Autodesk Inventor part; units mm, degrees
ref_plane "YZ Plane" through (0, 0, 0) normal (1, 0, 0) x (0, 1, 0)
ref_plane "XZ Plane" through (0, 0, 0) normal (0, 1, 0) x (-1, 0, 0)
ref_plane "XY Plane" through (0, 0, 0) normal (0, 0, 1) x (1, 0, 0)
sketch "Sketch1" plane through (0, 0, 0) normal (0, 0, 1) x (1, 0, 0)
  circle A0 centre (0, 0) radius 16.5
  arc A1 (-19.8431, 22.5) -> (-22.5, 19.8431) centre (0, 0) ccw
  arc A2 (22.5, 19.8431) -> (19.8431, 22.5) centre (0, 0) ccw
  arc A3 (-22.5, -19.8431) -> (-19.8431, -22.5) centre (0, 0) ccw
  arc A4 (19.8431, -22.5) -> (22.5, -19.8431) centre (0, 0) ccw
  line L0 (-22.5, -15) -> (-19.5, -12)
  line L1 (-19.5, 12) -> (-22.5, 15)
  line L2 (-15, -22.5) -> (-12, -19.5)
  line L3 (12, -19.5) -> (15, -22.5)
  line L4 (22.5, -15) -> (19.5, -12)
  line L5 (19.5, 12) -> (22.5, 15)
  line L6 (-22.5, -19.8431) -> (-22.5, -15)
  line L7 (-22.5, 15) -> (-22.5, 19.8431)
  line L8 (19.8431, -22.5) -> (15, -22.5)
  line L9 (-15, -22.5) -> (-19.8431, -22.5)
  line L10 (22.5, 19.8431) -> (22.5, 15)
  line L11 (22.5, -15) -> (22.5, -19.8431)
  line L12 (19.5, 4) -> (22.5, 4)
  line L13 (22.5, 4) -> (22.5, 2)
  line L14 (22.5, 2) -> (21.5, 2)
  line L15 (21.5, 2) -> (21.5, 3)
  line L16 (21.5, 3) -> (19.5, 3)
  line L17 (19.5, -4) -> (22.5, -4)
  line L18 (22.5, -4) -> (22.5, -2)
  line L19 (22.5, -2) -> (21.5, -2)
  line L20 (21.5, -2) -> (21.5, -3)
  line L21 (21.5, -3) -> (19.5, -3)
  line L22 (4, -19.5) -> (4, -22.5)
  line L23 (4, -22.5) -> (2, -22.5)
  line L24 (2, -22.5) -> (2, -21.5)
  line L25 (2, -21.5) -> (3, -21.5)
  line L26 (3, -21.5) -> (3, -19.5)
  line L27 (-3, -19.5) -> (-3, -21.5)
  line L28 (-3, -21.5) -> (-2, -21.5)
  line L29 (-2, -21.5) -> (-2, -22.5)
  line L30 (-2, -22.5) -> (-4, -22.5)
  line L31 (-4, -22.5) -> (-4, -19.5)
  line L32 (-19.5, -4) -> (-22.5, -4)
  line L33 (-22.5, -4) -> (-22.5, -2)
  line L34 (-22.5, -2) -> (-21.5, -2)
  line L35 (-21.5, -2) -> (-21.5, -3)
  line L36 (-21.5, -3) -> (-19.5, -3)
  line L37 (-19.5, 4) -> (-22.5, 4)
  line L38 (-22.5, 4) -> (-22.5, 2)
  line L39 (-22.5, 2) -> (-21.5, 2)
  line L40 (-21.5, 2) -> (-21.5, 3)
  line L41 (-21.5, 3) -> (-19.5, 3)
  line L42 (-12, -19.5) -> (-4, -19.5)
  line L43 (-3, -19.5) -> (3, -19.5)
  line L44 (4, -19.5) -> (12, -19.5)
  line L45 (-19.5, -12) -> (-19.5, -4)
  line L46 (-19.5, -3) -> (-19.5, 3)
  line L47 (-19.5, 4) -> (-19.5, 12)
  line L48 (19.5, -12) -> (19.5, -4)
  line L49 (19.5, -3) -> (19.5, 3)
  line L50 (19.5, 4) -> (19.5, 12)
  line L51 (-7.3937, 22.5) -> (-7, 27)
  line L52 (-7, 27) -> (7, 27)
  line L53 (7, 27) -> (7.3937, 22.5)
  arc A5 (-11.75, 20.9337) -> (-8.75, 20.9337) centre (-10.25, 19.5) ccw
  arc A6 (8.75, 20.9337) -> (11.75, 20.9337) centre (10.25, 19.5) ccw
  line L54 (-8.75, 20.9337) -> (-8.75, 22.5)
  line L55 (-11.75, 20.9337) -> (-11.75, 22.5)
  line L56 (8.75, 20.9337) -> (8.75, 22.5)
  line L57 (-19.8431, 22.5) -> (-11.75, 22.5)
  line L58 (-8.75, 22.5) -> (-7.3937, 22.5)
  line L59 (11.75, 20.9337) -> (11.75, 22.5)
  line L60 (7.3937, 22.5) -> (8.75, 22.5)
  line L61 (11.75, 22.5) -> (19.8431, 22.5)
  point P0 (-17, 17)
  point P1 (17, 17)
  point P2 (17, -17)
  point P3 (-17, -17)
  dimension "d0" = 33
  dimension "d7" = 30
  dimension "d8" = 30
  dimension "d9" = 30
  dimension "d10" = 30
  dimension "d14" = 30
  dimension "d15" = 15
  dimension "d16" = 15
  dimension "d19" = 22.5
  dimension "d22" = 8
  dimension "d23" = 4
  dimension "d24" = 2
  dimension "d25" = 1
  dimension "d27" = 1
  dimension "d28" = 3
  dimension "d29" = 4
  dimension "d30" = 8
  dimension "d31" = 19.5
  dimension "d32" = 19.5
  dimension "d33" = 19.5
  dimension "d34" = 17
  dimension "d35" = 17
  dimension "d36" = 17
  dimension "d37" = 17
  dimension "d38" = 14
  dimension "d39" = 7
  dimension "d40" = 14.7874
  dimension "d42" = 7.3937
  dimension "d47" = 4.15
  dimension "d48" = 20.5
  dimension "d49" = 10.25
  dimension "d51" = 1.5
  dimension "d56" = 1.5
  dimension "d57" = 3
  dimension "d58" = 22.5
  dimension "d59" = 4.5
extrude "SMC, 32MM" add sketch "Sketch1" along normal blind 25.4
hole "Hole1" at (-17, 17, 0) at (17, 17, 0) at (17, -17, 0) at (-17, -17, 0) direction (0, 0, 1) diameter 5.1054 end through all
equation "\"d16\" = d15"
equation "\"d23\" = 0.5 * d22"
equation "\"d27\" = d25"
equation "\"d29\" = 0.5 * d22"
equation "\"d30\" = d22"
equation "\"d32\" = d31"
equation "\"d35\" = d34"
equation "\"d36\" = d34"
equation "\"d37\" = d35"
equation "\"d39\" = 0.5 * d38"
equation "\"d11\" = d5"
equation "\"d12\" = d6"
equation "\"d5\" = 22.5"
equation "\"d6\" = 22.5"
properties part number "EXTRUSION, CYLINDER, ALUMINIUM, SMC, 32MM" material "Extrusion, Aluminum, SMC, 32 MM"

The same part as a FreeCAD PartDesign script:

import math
import FreeCAD as App
import Part
import Sketcher
Q = App.Units.Quantity

doc = App.newDocument("Part")
body = doc.addObject("PartDesign::Body", "Body")

sketch1 = body.newObject("Sketcher::SketchObject", "Sketch")
sketch1.AttachmentSupport = (doc.getObject("XY_Plane"), [""])
sketch1.MapMode = "FlatFace"
sketch1.addGeometry([
    Part.LineSegment(App.Vector(-11.8, 22.5, 0), App.Vector(-19.8, 22.5, 0)),
    Part.ArcOfCircle(Part.Circle(App.Vector(0, 0, 0), App.Vector(0, 0, 1), 30), math.radians(131.41), math.radians(138.59)),
    Part.LineSegment(App.Vector(-22.5, 19.8, 0), App.Vector(-22.5, 15, 0)),
    Part.LineSegment(App.Vector(-22.5, 15, 0), App.Vector(-19.5, 12, 0)),
    Part.LineSegment(App.Vector(-19.5, 12, 0), App.Vector(-19.5, 4, 0)),
    Part.LineSegment(App.Vector(-19.5, 4, 0), App.Vector(-22.5, 4, 0)),
    Part.LineSegment(App.Vector(-22.5, 4, 0), App.Vector(-22.5, 2, 0)),
    Part.LineSegment(App.Vector(-22.5, 2, 0), App.Vector(-21.5, 2, 0)),
    Part.LineSegment(App.Vector(-21.5, 2, 0), App.Vector(-21.5, 3, 0)),
    Part.LineSegment(App.Vector(-21.5, 3, 0), App.Vector(-19.5, 3, 0)),
    Part.LineSegment(App.Vector(-19.5, 3, 0), App.Vector(-19.5, -3, 0)),
    Part.LineSegment(App.Vector(-19.5, -3, 0), App.Vector(-21.5, -3, 0)),
    Part.LineSegment(App.Vector(-21.5, -3, 0), App.Vector(-21.5, -2, 0)),
    Part.LineSegment(App.Vector(-21.5, -2, 0), App.Vector(-22.5, -2, 0)),
    Part.LineSegment(App.Vector(-22.5, -2, 0), App.Vector(-22.5, -4, 0)),
    Part.LineSegment(App.Vector(-22.5, -4, 0), App.Vector(-19.5, -4, 0)),
    Part.LineSegment(App.Vector(-19.5, -4, 0), App.Vector(-19.5, -12, 0)),
    Part.LineSegment(App.Vector(-19.5, -12, 0), App.Vector(-22.5, -15, 0)),
    Part.LineSegment(App.Vector(-22.5, -15, 0), App.Vector(-22.5, -19.8, 0)),
    Part.ArcOfCircle(Part.Circle(App.Vector(0, 0, 0), App.Vector(0, 0, 1), 30), math.radians(-138.59), math.radians(-131.41)),
    Part.LineSegment(App.Vector(-19.8, -22.5, 0), App.Vector(-15, -22.5, 0)),
    Part.LineSegment(App.Vector(-15, -22.5, 0), App.Vector(-12, -19.5, 0)),
    Part.LineSegment(App.Vector(-12, -19.5, 0), App.Vector(-4, -19.5, 0)),
    Part.LineSegment(App.Vector(-4, -19.5, 0), App.Vector(-4, -22.5, 0)),
    Part.LineSegment(App.Vector(-4, -22.5, 0), App.Vector(-2, -22.5, 0)),
    Part.LineSegment(App.Vector(-2, -22.5, 0), App.Vector(-2, -21.5, 0)),
    Part.LineSegment(App.Vector(-2, -21.5, 0), App.Vector(-3, -21.5, 0)),
    Part.LineSegment(App.Vector(-3, -21.5, 0), App.Vector(-3, -19.5, 0)),
    Part.LineSegment(App.Vector(-3, -19.5, 0), App.Vector(3, -19.5, 0)),
    Part.LineSegment(App.Vector(3, -19.5, 0), App.Vector(3, -21.5, 0)),
    Part.LineSegment(App.Vector(3, -21.5, 0), App.Vector(2, -21.5, 0)),
    Part.LineSegment(App.Vector(2, -21.5, 0), App.Vector(2, -22.5, 0)),
    Part.LineSegment(App.Vector(2, -22.5, 0), App.Vector(4, -22.5, 0)),
    Part.LineSegment(App.Vector(4, -22.5, 0), App.Vector(4, -19.5, 0)),
    Part.LineSegment(App.Vector(4, -19.5, 0), App.Vector(12, -19.5, 0)),
    Part.LineSegment(App.Vector(12, -19.5, 0), App.Vector(15, -22.5, 0)),
    Part.LineSegment(App.Vector(15, -22.5, 0), App.Vector(19.8, -22.5, 0)),
    Part.ArcOfCircle(Part.Circle(App.Vector(0, 0, 0), App.Vector(0, 0, 1), 30), math.radians(-48.59), math.radians(-41.41)),
    Part.LineSegment(App.Vector(22.5, -19.8, 0), App.Vector(22.5, -15, 0)),
    Part.LineSegment(App.Vector(22.5, -15, 0), App.Vector(19.5, -12, 0)),
    Part.LineSegment(App.Vector(19.5, -12, 0), App.Vector(19.5, -4, 0)),
    Part.LineSegment(App.Vector(19.5, -4, 0), App.Vector(22.5, -4, 0)),
    Part.LineSegment(App.Vector(22.5, -4, 0), App.Vector(22.5, -2, 0)),
    Part.LineSegment(App.Vector(22.5, -2, 0), App.Vector(21.5, -2, 0)),
    Part.LineSegment(App.Vector(21.5, -2, 0), App.Vector(21.5, -3, 0)),
    Part.LineSegment(App.Vector(21.5, -3, 0), App.Vector(19.5, -3, 0)),
    Part.LineSegment(App.Vector(19.5, -3, 0), App.Vector(19.5, 3, 0)),
    Part.LineSegment(App.Vector(19.5, 3, 0), App.Vector(21.5, 3, 0)),
    Part.LineSegment(App.Vector(21.5, 3, 0), App.Vector(21.5, 2, 0)),
    Part.LineSegment(App.Vector(21.5, 2, 0), App.Vector(22.5, 2, 0)),
    Part.LineSegment(App.Vector(22.5, 2, 0), App.Vector(22.5, 4, 0)),
    Part.LineSegment(App.Vector(22.5, 4, 0), App.Vector(19.5, 4, 0)),
    Part.LineSegment(App.Vector(19.5, 4, 0), App.Vector(19.5, 12, 0)),
    Part.LineSegment(App.Vector(19.5, 12, 0), App.Vector(22.5, 15, 0)),
    Part.LineSegment(App.Vector(22.5, 15, 0), App.Vector(22.5, 19.8, 0)),
    Part.ArcOfCircle(Part.Circle(App.Vector(0, 0, 0), App.Vector(0, 0, 1), 30), math.radians(41.41), math.radians(48.59)),
    Part.LineSegment(App.Vector(19.8, 22.5, 0), App.Vector(11.8, 22.5, 0)),
    Part.LineSegment(App.Vector(11.8, 22.5, 0), App.Vector(11.8, 20.9, 0)),
    Part.ArcOfCircle(Part.Circle(App.Vector(10.2, 19.5, 0), App.Vector(0, 0, 1), 2.1), math.radians(136), math.radians(404)),
    Part.LineSegment(App.Vector(8.8, 20.9, 0), App.Vector(8.8, 22.5, 0)),
    Part.LineSegment(App.Vector(8.8, 22.5, 0), App.Vector(7.4, 22.5, 0)),
    Part.LineSegment(App.Vector(7.4, 22.5, 0), App.Vector(7, 27, 0)),
    Part.LineSegment(App.Vector(7, 27, 0), App.Vector(-7, 27, 0)),
    Part.LineSegment(App.Vector(-7, 27, 0), App.Vector(-7.4, 22.5, 0)),
    Part.LineSegment(App.Vector(-7.4, 22.5, 0), App.Vector(-8.8, 22.5, 0)),
    Part.LineSegment(App.Vector(-8.8, 22.5, 0), App.Vector(-8.8, 20.9, 0)),
    Part.ArcOfCircle(Part.Circle(App.Vector(-10.2, 19.5, 0), App.Vector(0, 0, 1), 2.1), math.radians(136), math.radians(404)),
    Part.LineSegment(App.Vector(-11.8, 20.9, 0), App.Vector(-11.8, 22.5, 0)),
    Part.Circle(App.Vector(0, 0, 0), App.Vector(0, 0, 1), 16.5),
], False)
sketch1.addConstraint([
    Sketcher.Constraint("Coincident", 0, 2, 1, 1),
    Sketcher.Constraint("Coincident", 1, 2, 2, 1),
    Sketcher.Constraint("Coincident", 2, 2, 3, 1),
    Sketcher.Constraint("Coincident", 3, 2, 4, 1),
    Sketcher.Constraint("Coincident", 4, 2, 5, 1),
    Sketcher.Constraint("Coincident", 5, 2, 6, 1),
    Sketcher.Constraint("Coincident", 6, 2, 7, 1),
    Sketcher.Constraint("Coincident", 7, 2, 8, 1),
    Sketcher.Constraint("Coincident", 8, 2, 9, 1),
    Sketcher.Constraint("Coincident", 9, 2, 10, 1),
    Sketcher.Constraint("Coincident", 10, 2, 11, 1),
    Sketcher.Constraint("Coincident", 11, 2, 12, 1),
    Sketcher.Constraint("Coincident", 12, 2, 13, 1),
    Sketcher.Constraint("Coincident", 13, 2, 14, 1),
    Sketcher.Constraint("Coincident", 14, 2, 15, 1),
    Sketcher.Constraint("Coincident", 15, 2, 16, 1),
    Sketcher.Constraint("Coincident", 16, 2, 17, 1),
    Sketcher.Constraint("Coincident", 17, 2, 18, 1),
    Sketcher.Constraint("Coincident", 18, 2, 19, 1),
    Sketcher.Constraint("Coincident", 19, 2, 20, 1),
    Sketcher.Constraint("Coincident", 20, 2, 21, 1),
    Sketcher.Constraint("Coincident", 21, 2, 22, 1),
    Sketcher.Constraint("Coincident", 22, 2, 23, 1),
    Sketcher.Constraint("Coincident", 23, 2, 24, 1),
    Sketcher.Constraint("Coincident", 24, 2, 25, 1),
    Sketcher.Constraint("Coincident", 25, 2, 26, 1),
    Sketcher.Constraint("Coincident", 26, 2, 27, 1),
    Sketcher.Constraint("Coincident", 27, 2, 28, 1),
    Sketcher.Constraint("Coincident", 28, 2, 29, 1),
    Sketcher.Constraint("Coincident", 29, 2, 30, 1),
    Sketcher.Constraint("Coincident", 30, 2, 31, 1),
    Sketcher.Constraint("Coincident", 31, 2, 32, 1),
    Sketcher.Constraint("Coincident", 32, 2, 33, 1),
    Sketcher.Constraint("Coincident", 33, 2, 34, 1),
    Sketcher.Constraint("Coincident", 34, 2, 35, 1),
    Sketcher.Constraint("Coincident", 35, 2, 36, 1),
    Sketcher.Constraint("Coincident", 36, 2, 37, 1),
    Sketcher.Constraint("Coincident", 37, 2, 38, 1),
    Sketcher.Constraint("Coincident", 38, 2, 39, 1),
    Sketcher.Constraint("Coincident", 39, 2, 40, 1),
    Sketcher.Constraint("Coincident", 40, 2, 41, 1),
    Sketcher.Constraint("Coincident", 41, 2, 42, 1),
    Sketcher.Constraint("Coincident", 42, 2, 43, 1),
    Sketcher.Constraint("Coincident", 43, 2, 44, 1),
    Sketcher.Constraint("Coincident", 44, 2, 45, 1),
    Sketcher.Constraint("Coincident", 45, 2, 46, 1),
    Sketcher.Constraint("Coincident", 46, 2, 47, 1),
    Sketcher.Constraint("Coincident", 47, 2, 48, 1),
    Sketcher.Constraint("Coincident", 48, 2, 49, 1),
    Sketcher.Constraint("Coincident", 49, 2, 50, 1),
    Sketcher.Constraint("Coincident", 50, 2, 51, 1),
    Sketcher.Constraint("Coincident", 51, 2, 52, 1),
    Sketcher.Constraint("Coincident", 52, 2, 53, 1),
    Sketcher.Constraint("Coincident", 53, 2, 54, 1),
    Sketcher.Constraint("Coincident", 54, 2, 55, 1),
    Sketcher.Constraint("Coincident", 55, 2, 56, 1),
    Sketcher.Constraint("Coincident", 56, 2, 57, 1),
    Sketcher.Constraint("Coincident", 57, 2, 58, 2),
    Sketcher.Constraint("Coincident", 58, 1, 59, 1),
    Sketcher.Constraint("Coincident", 59, 2, 60, 1),
    Sketcher.Constraint("Coincident", 60, 2, 61, 1),
    Sketcher.Constraint("Coincident", 61, 2, 62, 1),
    Sketcher.Constraint("Coincident", 62, 2, 63, 1),
    Sketcher.Constraint("Coincident", 63, 2, 64, 1),
    Sketcher.Constraint("Coincident", 64, 2, 65, 1),
    Sketcher.Constraint("Coincident", 65, 2, 66, 2),
    Sketcher.Constraint("Coincident", 66, 1, 67, 1),
    Sketcher.Constraint("Coincident", 67, 2, 0, 1),
    Sketcher.Constraint("Horizontal", 0),
    Sketcher.Constraint("Vertical", 2),
    Sketcher.Constraint("Vertical", 4),
    Sketcher.Constraint("Horizontal", 5),
    Sketcher.Constraint("Vertical", 6),
    Sketcher.Constraint("Horizontal", 7),
    Sketcher.Constraint("Vertical", 8),
    Sketcher.Constraint("Horizontal", 9),
    Sketcher.Constraint("Vertical", 10),
    Sketcher.Constraint("Horizontal", 11),
    Sketcher.Constraint("Vertical", 12),
    Sketcher.Constraint("Horizontal", 13),
    Sketcher.Constraint("Vertical", 14),
    Sketcher.Constraint("Horizontal", 15),
    Sketcher.Constraint("Vertical", 16),
    Sketcher.Constraint("Vertical", 18),
    Sketcher.Constraint("Horizontal", 20),
    Sketcher.Constraint("Horizontal", 22),
    Sketcher.Constraint("Vertical", 23),
    Sketcher.Constraint("Horizontal", 24),
    Sketcher.Constraint("Vertical", 25),
    Sketcher.Constraint("Horizontal", 26),
    Sketcher.Constraint("Vertical", 27),
    Sketcher.Constraint("Horizontal", 28),
    Sketcher.Constraint("Vertical", 29),
    Sketcher.Constraint("Horizontal", 30),
    Sketcher.Constraint("Vertical", 31),
    Sketcher.Constraint("Horizontal", 32),
    Sketcher.Constraint("Vertical", 33),
    Sketcher.Constraint("Horizontal", 34),
    Sketcher.Constraint("Horizontal", 36),
    Sketcher.Constraint("Vertical", 38),
    Sketcher.Constraint("Vertical", 40),
    Sketcher.Constraint("Horizontal", 41),
    Sketcher.Constraint("Vertical", 42),
    Sketcher.Constraint("Horizontal", 43),
    Sketcher.Constraint("Vertical", 44),
    Sketcher.Constraint("Horizontal", 45),
    Sketcher.Constraint("Vertical", 46),
    Sketcher.Constraint("Horizontal", 47),
    Sketcher.Constraint("Vertical", 48),
    Sketcher.Constraint("Horizontal", 49),
    Sketcher.Constraint("Vertical", 50),
    Sketcher.Constraint("Horizontal", 51),
    Sketcher.Constraint("Vertical", 52),
    Sketcher.Constraint("Vertical", 54),
    Sketcher.Constraint("Horizontal", 56),
    Sketcher.Constraint("Vertical", 57),
    Sketcher.Constraint("Vertical", 59),
    Sketcher.Constraint("Horizontal", 60),
    Sketcher.Constraint("Horizontal", 62),
    Sketcher.Constraint("Horizontal", 64),
    Sketcher.Constraint("Vertical", 65),
    Sketcher.Constraint("Vertical", 67),
    Sketcher.Constraint("Coincident", 1, 3, -1, 1),
    Sketcher.Constraint("Coincident", 19, 3, -1, 1),
    Sketcher.Constraint("Coincident", 37, 3, -1, 1),
    Sketcher.Constraint("Coincident", 55, 3, -1, 1),
    Sketcher.Constraint("Coincident", 68, 3, -1, 1),
    Sketcher.Constraint("Equal", 1, 19),
    Sketcher.Constraint("Equal", 19, 37),
    Sketcher.Constraint("Equal", 37, 55),
    Sketcher.Constraint("Equal", 58, 66),
    Sketcher.Constraint("Symmetric", 2, 2, 38, 2, -1, 1),
    Sketcher.Constraint("Symmetric", 3, 2, 39, 2, -1, 1),
    Sketcher.Constraint("Symmetric", 5, 2, 41, 2, -1, 1),
    Sketcher.Constraint("Symmetric", 7, 2, 43, 2, -1, 1),
    Sketcher.Constraint("Symmetric", 9, 2, 45, 2, -1, 1),
    Sketcher.Constraint("Symmetric", 11, 2, 47, 2, -1, 1),
    Sketcher.Constraint("Symmetric", 13, 2, 49, 2, -1, 1),
    Sketcher.Constraint("Symmetric", 15, 2, 51, 2, -1, 1),
    Sketcher.Constraint("Symmetric", 17, 2, 53, 2, -1, 1),
    Sketcher.Constraint("Symmetric", 58, 3, 66, 3, -2),
    Sketcher.Constraint("Symmetric", 26, 2, 29, 2, -2),
    Sketcher.Constraint("Symmetric", 24, 2, 31, 2, -2),
    Sketcher.Constraint("Symmetric", 22, 2, 33, 2, -2),
    Sketcher.Constraint("Symmetric", 20, 2, 35, 2, -2),
    Sketcher.Constraint("Symmetric", 17, 2, 38, 2, -2),
    Sketcher.Constraint("Symmetric", 16, 2, 39, 2, -2),
    Sketcher.Constraint("Symmetric", 14, 2, 41, 2, -2),
    Sketcher.Constraint("Symmetric", 12, 2, 43, 2, -2),
    Sketcher.Constraint("Symmetric", 60, 2, 63, 2, -2),
    Sketcher.Constraint("Symmetric", 56, 2, 67, 2, -2),
    Sketcher.Constraint("Perpendicular", 3, 17),
    Sketcher.Constraint("Parallel", 17, 21),
    Sketcher.Constraint("Perpendicular", 21, 35),
    Sketcher.Constraint("Perpendicular", 39, 53),
    Sketcher.Constraint("Horizontal", 20, 2, 23, 2),
    Sketcher.Constraint("Horizontal", 22, 2, 27, 2),
    Sketcher.Constraint("Horizontal", 11, 2, 44, 2),
    Sketcher.Constraint("Horizontal", 57, 2, 58, 1),
    Sketcher.Constraint("Horizontal", 56, 2, 59, 2),
    Sketcher.Constraint("Horizontal", 58, 1, 65, 2),
    Sketcher.Constraint("Vertical", 2, 2, 5, 2),
    Sketcher.Constraint("Vertical", 4, 2, 9, 2),
    Sketcher.Constraint("Vertical", 0, 2, 19, 2),
    Sketcher.Constraint("Equal", 11, 24),
    Sketcher.Constraint("Equal", 13, 26),
    Sketcher.Constraint("Equal", 36, 2),
    Sketcher.Constraint("Equal", 34, 4),
    Sketcher.Constraint("Equal", 47, 6),
    Sketcher.Constraint("Equal", 49, 8),
    Sketcher.Constraint("Equal", 28, 10),
    Sketcher.Constraint("Equal", 51, 23),
    Sketcher.Constraint("Equal", 12, 25),
    Sketcher.Constraint("Equal", 61, 63),
    Sketcher.Constraint("Diameter", 68, 33.0),
    Sketcher.Constraint("Radius", 1, 30.0),
    Sketcher.Constraint("DistanceX", 5, 2, 5, 1, 3.0),
    Sketcher.Constraint("DistanceX", 7, 1, 7, 2, 1.0),
    Sketcher.Constraint("DistanceX", 22, 1, 22, 2, 8.0),
    Sketcher.Constraint("DistanceX", 62, 2, 62, 1, 14.0),
    Sketcher.Constraint("DistanceY", -1, 1, 2, 2, 15.0),
    Sketcher.Constraint("Radius", 58, 2.075),
    Sketcher.Constraint("DistanceY", -1, 1, 58, 3, 19.5),
    Sketcher.Constraint("DistanceY", -1, 1, 0, 2, 22.5),
    Sketcher.Constraint("DistanceX", -1, 1, 58, 3, 10.25),
    Sketcher.Constraint("Angle", 61, Q("95 deg")),
    Sketcher.Constraint("DistanceY", -1, 1, 61, 2, 27.0),
    Sketcher.Constraint("DistanceX", 0, 2, 0, 1, 8.093),
])
pad1 = body.newObject("PartDesign::Pad", "Pad")
pad1.Profile = sketch1
pad1.Length = 25.4

sketch2 = body.newObject("Sketcher::SketchObject", "Sketch001")
sketch2.AttachmentSupport = (doc.getObject("XY_Plane"), [""])
sketch2.MapMode = "FlatFace"
sketch2.addGeometry([
    Part.Circle(App.Vector(-17, 17, 0), App.Vector(0, 0, 1), 2.6),
    Part.Circle(App.Vector(17, 17, 0), App.Vector(0, 0, 1), 2.6),
    Part.Circle(App.Vector(17, -17, 0), App.Vector(0, 0, 1), 2.6),
    Part.Circle(App.Vector(-17, -17, 0), App.Vector(0, 0, 1), 2.6),
], False)
sketch2.addConstraint([
    Sketcher.Constraint("Equal", 0, 1),
    Sketcher.Constraint("Equal", 1, 2),
    Sketcher.Constraint("Equal", 2, 3),
    Sketcher.Constraint("Symmetric", 0, 3, 2, 3, -1, 1),
    Sketcher.Constraint("Symmetric", 1, 3, 3, 3, -1, 1),
    Sketcher.Constraint("Symmetric", 0, 3, 1, 3, -2),
    Sketcher.Constraint("DistanceX", 0, 3, -1, 1, 17.0),
    Sketcher.Constraint("DistanceY", -1, 1, 0, 3, 17.0),
    Sketcher.Constraint("Diameter", 0, 5.1054),
])
doc.recompute()
hole = body.newObject("PartDesign::Hole", "Hole")
hole.Profile = sketch2
hole.ThreadType = "None"
hole.Diameter = 5.1054
hole.DepthType = "ThroughAll"
hole.Reversed = True

doc.recompute()
